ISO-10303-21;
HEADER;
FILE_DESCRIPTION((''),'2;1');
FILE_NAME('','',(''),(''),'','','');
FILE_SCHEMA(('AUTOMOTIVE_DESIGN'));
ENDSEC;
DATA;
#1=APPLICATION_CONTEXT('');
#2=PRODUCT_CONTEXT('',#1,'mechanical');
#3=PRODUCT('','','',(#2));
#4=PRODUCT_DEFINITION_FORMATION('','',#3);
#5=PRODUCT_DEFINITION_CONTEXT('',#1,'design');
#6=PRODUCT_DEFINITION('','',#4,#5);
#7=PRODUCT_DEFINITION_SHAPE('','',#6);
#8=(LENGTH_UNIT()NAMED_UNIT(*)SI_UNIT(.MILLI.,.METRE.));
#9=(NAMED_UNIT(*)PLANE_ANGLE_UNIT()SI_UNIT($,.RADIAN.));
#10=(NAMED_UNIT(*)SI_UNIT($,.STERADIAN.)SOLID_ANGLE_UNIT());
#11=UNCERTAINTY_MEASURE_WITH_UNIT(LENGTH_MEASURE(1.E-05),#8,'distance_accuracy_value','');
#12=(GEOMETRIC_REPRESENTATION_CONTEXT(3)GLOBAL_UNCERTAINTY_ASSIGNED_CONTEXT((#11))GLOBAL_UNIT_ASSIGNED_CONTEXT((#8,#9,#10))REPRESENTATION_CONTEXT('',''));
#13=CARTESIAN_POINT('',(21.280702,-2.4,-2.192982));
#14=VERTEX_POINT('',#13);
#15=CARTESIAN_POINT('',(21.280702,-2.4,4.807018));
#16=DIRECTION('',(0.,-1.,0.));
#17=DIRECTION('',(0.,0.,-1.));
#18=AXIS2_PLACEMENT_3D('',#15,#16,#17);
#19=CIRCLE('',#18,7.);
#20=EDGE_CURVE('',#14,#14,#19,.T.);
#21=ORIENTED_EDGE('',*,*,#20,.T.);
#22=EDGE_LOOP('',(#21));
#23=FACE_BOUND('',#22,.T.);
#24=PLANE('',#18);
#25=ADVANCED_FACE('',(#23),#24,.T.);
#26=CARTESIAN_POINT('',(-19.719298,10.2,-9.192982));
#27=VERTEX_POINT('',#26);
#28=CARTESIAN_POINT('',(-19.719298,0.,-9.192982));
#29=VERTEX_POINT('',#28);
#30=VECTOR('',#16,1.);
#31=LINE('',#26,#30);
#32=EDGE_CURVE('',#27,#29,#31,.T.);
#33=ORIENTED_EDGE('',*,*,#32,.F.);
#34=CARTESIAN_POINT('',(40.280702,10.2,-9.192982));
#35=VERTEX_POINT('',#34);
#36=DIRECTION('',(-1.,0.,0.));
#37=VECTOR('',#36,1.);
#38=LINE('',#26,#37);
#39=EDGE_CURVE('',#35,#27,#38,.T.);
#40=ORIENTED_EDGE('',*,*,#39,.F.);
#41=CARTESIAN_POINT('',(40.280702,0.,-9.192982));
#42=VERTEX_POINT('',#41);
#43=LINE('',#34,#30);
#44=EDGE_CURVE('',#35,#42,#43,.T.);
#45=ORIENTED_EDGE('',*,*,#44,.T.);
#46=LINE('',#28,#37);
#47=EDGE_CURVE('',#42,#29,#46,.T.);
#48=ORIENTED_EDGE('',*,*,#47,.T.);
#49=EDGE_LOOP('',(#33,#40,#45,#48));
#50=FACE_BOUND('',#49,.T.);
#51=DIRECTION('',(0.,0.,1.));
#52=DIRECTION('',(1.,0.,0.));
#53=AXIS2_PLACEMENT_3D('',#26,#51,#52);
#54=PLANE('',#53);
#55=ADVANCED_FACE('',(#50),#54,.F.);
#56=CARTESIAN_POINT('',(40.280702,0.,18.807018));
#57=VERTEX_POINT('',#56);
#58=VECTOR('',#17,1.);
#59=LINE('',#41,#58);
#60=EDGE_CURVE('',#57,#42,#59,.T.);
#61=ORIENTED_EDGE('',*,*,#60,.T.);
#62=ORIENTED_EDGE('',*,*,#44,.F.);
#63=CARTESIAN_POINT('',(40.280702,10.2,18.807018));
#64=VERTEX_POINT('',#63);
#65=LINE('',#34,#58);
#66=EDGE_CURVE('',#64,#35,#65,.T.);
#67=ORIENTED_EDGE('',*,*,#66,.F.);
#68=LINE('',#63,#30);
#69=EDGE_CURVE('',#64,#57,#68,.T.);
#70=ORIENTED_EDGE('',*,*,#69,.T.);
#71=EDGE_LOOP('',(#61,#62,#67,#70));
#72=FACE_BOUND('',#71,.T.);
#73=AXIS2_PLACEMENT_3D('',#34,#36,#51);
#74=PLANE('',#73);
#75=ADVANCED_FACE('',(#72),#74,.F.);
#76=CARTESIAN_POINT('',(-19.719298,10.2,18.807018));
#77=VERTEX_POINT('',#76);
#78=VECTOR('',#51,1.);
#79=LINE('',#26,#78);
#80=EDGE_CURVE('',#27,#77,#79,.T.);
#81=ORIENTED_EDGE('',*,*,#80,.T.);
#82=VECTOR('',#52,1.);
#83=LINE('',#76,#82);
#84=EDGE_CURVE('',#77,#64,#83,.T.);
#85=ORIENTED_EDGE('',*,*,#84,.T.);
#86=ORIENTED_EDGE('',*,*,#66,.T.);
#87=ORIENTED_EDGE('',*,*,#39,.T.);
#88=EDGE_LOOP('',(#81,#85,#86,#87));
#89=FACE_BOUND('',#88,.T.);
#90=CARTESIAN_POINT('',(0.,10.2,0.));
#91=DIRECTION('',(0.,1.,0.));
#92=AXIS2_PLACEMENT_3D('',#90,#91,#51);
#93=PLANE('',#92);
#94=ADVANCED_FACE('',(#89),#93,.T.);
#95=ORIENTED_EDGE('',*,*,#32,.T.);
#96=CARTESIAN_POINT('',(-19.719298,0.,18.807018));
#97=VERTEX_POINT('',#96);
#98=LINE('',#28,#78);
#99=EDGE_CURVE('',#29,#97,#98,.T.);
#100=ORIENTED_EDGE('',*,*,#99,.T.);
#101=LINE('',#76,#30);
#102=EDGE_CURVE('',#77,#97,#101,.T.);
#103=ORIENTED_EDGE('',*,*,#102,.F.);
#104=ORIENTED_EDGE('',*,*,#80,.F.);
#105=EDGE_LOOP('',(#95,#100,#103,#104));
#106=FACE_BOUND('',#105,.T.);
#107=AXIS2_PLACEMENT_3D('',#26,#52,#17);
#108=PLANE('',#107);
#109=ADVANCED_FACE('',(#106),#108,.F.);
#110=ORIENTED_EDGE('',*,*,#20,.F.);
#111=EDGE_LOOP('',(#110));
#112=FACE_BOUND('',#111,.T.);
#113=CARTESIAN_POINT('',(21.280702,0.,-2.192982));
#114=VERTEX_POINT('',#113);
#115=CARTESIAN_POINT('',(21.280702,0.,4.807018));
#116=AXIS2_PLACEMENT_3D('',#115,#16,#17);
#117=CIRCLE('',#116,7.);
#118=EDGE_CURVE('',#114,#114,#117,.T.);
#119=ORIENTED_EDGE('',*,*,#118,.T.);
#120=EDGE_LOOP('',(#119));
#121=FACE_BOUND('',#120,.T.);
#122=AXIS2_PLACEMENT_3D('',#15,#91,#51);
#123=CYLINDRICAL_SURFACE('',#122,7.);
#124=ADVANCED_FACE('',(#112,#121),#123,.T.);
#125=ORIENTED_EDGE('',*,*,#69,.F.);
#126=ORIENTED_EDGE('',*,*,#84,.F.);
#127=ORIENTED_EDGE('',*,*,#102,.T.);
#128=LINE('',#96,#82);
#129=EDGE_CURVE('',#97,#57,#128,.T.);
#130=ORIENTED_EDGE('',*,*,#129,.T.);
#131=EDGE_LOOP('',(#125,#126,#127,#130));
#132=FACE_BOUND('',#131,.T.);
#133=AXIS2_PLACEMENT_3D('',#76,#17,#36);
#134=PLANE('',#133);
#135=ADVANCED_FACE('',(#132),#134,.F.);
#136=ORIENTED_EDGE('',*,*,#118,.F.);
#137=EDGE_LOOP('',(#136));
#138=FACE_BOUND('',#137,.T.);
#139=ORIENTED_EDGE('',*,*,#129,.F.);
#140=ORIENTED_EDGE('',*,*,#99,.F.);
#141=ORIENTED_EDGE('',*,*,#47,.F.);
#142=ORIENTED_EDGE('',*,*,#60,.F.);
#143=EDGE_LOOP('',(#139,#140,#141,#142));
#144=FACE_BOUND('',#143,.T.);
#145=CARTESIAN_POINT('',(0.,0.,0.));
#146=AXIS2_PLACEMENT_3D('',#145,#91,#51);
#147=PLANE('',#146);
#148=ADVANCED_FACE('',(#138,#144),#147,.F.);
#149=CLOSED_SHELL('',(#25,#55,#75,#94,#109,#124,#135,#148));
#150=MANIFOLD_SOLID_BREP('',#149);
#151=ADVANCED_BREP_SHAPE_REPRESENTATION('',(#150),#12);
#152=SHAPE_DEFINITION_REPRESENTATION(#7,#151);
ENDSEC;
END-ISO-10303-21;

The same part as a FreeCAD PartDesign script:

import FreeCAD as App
import Part
import Sketcher
Q = App.Units.Quantity


def add_polygon(sketch, points):
    """Adds a closed chain of lines whose ends are joined by coincident constraints."""
    first, n = sketch.GeometryCount, len(points)
    for a, b in zip(points, points[1:] + points[:1]):
        sketch.addGeometry(Part.LineSegment(App.Vector(*a, 0), App.Vector(*b, 0)), False)
    for i in range(n):
        sketch.addConstraint(Sketcher.Constraint("Coincident", first + i, 2, first + (i + 1) % n, 1))

doc = App.newDocument("Part")
body = doc.addObject("PartDesign::Body", "Body")

sketch1 = doc.addObject("Sketcher::SketchObject", "Sketch")
body.addObject(sketch1)
sketch1.AttachmentSupport = (doc.XZ_Plane, [""])
sketch1.MapMode = "FlatFace"
add_polygon(sketch1, [(-20, -9), (-20, 19), (40, 19), (40, -9)])
sketch1.addConstraint(Sketcher.Constraint("Vertical", 0))
sketch1.addConstraint(Sketcher.Constraint("Horizontal", 1))
sketch1.addConstraint(Sketcher.Constraint("Vertical", 2))
sketch1.addConstraint(Sketcher.Constraint("Horizontal", 3))
sketch1.addConstraint(Sketcher.Constraint("DistanceX", 1, 1, 1, 2, Q("60 mm")))
sketch1.addConstraint(Sketcher.Constraint("DistanceY", 0, 1, 0, 2, Q("28 mm")))
sketch1.addConstraint(Sketcher.Constraint("DistanceX", 0, 2, -1, 1, Q("19.719298 mm")))
sketch1.addConstraint(Sketcher.Constraint("DistanceY", -1, 1, 0, 2, Q("18.807018 mm")))
pad1 = doc.addObject("PartDesign::Pad", "Pad")
body.addObject(pad1)
pad1.Profile = sketch1
pad1.Length = 10.2
pad1.Reversed = True

sketch2 = doc.addObject("Sketcher::SketchObject", "Sketch001")
body.addObject(sketch2)
sketch2.AttachmentSupport = (doc.XZ_Plane, [""])
sketch2.MapMode = "FlatFace"
sketch2.addGeometry(Part.Circle(App.Vector(21, 5, 0), App.Vector(0, 0, 1), 7), False)
sketch2.addConstraint(Sketcher.Constraint("Diameter", 0, Q("14 mm")))
sketch2.addConstraint(Sketcher.Constraint("DistanceX", -1, 1, 0, 3, Q("21.280702 mm")))
sketch2.addConstraint(Sketcher.Constraint("DistanceY", -1, 1, 0, 3, Q("4.807018 mm")))
pad2 = doc.addObject("PartDesign::Pad", "Pad001")
body.addObject(pad2)
pad2.Profile = sketch2
pad2.Length = 2.4

doc.recompute()
